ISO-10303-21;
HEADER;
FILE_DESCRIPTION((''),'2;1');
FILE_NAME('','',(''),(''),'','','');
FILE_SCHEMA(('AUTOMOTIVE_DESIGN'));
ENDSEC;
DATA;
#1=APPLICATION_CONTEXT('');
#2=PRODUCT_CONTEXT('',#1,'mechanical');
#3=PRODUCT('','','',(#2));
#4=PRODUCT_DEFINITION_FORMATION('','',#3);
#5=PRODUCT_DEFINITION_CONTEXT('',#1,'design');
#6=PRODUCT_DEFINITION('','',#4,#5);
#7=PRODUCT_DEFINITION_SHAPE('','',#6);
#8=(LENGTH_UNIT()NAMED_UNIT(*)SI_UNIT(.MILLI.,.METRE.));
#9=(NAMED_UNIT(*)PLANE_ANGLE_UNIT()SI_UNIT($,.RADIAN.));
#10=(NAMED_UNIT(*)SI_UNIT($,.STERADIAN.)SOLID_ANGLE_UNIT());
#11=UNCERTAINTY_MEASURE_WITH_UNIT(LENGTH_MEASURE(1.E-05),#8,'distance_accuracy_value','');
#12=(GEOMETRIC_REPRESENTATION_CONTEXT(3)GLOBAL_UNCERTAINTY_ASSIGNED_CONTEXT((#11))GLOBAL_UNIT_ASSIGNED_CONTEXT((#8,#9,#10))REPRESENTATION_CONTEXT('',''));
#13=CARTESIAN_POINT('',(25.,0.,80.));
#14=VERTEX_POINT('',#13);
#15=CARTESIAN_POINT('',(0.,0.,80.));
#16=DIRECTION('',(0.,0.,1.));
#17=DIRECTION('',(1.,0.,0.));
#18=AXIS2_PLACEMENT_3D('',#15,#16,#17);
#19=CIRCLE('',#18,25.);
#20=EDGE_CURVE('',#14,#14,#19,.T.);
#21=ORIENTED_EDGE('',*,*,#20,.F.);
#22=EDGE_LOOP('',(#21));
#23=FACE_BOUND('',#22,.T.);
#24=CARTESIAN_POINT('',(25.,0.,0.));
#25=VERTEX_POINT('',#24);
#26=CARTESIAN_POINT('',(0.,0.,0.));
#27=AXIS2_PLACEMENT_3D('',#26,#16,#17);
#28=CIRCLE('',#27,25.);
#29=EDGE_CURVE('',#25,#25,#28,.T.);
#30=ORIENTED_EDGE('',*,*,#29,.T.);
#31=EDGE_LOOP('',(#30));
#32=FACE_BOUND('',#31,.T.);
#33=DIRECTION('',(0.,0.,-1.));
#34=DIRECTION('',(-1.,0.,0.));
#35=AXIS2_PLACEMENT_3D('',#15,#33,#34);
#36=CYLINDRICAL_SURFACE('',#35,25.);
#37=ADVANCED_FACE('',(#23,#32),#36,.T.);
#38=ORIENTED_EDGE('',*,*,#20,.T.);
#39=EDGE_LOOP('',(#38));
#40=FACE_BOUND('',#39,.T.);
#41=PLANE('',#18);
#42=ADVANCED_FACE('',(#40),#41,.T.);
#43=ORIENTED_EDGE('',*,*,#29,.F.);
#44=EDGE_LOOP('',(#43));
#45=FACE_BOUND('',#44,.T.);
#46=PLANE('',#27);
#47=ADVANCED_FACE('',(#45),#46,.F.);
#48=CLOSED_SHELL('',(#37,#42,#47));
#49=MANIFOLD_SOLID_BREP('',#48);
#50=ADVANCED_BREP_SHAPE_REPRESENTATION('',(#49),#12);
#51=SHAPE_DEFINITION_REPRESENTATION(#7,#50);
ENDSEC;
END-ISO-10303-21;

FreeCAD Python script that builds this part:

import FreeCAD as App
import Part
import Sketcher

doc = App.newDocument("Part")
body = doc.addObject("PartDesign::Body", "Body")

sketch1 = body.newObject("Sketcher::SketchObject", "Sketch")
sketch1.AttachmentSupport = (doc.getObject("XY_Plane"), [""])
sketch1.MapMode = "FlatFace"
sketch1.addGeometry(Part.Circle(App.Vector(0, 0, 0), App.Vector(0, 0, 1), 25), False)
sketch1.addConstraint([
    Sketcher.Constraint("Coincident", 0, 3, -1, 1),
    Sketcher.Constraint("Diameter", 0, 50.0),
])
pad1 = body.newObject("PartDesign::Pad", "Pad")
pad1.Profile = sketch1
pad1.Length = 80

doc.recompute()
